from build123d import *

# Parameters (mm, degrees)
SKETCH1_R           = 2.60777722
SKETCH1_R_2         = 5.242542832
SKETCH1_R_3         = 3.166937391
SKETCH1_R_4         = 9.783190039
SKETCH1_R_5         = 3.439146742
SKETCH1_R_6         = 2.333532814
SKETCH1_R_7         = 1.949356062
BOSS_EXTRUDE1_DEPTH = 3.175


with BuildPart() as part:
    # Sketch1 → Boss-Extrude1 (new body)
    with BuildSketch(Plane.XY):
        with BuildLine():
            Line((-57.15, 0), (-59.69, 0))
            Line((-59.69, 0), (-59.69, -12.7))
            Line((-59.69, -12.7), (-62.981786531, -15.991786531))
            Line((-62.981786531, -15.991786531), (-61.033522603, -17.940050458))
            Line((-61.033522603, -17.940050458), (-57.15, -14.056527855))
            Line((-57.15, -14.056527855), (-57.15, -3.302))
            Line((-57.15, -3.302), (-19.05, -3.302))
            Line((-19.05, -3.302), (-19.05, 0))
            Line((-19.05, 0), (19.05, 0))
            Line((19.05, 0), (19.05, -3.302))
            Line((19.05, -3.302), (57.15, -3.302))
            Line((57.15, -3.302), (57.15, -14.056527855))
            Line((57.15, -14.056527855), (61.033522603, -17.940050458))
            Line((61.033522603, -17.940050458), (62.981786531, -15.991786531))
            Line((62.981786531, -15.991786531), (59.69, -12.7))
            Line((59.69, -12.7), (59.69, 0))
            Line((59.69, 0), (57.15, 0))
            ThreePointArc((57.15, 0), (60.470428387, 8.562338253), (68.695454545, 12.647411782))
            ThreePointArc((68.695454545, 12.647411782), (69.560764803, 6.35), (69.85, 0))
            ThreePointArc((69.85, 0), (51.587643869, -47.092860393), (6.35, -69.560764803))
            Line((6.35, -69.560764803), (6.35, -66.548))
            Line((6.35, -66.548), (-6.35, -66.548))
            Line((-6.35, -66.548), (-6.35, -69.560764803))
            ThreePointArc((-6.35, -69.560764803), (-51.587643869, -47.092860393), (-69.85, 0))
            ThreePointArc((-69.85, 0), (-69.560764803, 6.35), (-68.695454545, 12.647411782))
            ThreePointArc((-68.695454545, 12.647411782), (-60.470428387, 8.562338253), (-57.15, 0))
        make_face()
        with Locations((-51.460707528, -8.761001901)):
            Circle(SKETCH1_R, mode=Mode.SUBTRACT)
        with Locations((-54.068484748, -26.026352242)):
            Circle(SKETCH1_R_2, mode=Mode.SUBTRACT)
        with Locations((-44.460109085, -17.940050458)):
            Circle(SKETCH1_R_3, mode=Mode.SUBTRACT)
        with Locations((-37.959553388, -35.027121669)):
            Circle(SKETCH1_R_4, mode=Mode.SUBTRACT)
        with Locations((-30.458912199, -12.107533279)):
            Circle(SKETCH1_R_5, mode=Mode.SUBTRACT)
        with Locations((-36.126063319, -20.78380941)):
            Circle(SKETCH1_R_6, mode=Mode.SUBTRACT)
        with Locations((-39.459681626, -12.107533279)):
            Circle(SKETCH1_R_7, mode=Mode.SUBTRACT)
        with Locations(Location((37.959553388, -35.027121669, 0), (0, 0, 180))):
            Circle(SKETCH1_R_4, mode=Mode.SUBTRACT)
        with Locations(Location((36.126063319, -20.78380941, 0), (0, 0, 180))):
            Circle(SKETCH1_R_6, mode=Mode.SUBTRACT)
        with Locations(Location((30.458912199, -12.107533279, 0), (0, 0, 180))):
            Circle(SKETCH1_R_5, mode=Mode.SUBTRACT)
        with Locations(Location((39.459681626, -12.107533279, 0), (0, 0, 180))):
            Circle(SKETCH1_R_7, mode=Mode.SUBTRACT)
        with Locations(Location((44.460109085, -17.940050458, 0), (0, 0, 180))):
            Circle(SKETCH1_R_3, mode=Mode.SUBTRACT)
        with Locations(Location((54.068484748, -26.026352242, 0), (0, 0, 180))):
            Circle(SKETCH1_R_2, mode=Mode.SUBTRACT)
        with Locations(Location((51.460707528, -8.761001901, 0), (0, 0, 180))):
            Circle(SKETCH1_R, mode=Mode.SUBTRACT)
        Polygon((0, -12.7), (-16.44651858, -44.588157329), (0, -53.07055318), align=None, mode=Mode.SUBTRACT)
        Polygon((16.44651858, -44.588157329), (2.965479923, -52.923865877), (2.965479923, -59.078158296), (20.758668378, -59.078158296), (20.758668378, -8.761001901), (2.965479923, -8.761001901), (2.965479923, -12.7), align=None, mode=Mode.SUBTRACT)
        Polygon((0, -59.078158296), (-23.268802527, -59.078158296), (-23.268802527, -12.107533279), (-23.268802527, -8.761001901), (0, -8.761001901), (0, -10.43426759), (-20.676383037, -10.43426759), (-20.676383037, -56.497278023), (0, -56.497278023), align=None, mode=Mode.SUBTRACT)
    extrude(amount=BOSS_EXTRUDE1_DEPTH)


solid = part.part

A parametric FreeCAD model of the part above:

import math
import FreeCAD as App
import Part
import Sketcher
Q = App.Units.Quantity

doc = App.newDocument("Part")
body = doc.addObject("PartDesign::Body", "Body")

# Sketch on XY plane
sketch1 = body.newObject("Sketcher::SketchObject", "Sketch")
sketch1.AttachmentSupport = (doc.getObject("XY_Plane"), [""])
sketch1.MapMode = "FlatFace"
sketch1.addGeometry(Part.LineSegment(App.Vector(-59.69, 0, 0), App.Vector(-57.15, 0, 0)), False)
sketch1.addGeometry(Part.ArcOfCircle(Part.Circle(App.Vector(-69.85, 0, 0), App.Vector(0, 0, 1), 12.7), math.radians(0), math.radians(84.784091)), False)
sketch1.addGeometry(Part.ArcOfCircle(Part.Circle(App.Vector(0, 0, 0), App.Vector(0, 0, 1), 69.85), math.radians(169.568183), math.radians(180)), False)
sketch1.addGeometry(Part.ArcOfCircle(Part.Circle(App.Vector(0, 0, 0), App.Vector(0, 0, 1), 69.85), math.radians(-180), math.radians(-95.215909)), False)
sketch1.addGeometry(Part.LineSegment(App.Vector(-6.35, -69.560765, 0), App.Vector(-6.35, -66.548, 0)), False)
sketch1.addGeometry(Part.LineSegment(App.Vector(-6.35, -66.548, 0), App.Vector(6.35, -66.548, 0)), False)
sketch1.addGeometry(Part.LineSegment(App.Vector(6.35, -66.548, 0), App.Vector(6.35, -69.560765, 0)), False)
sketch1.addGeometry(Part.ArcOfCircle(Part.Circle(App.Vector(0, 0, 0), App.Vector(0, 0, 1), 69.85), math.radians(-84.784091), math.radians(0)), False)
sketch1.addGeometry(Part.ArcOfCircle(Part.Circle(App.Vector(0, 0, 0), App.Vector(0, 0, 1), 69.85), math.radians(0), math.radians(10.431817)), False)
sketch1.addGeometry(Part.ArcOfCircle(Part.Circle(App.Vector(69.85, 0, 0), App.Vector(0, 0, 1), 12.7), math.radians(95.215909), math.radians(180)), False)
sketch1.addGeometry(Part.LineSegment(App.Vector(57.15, 0, 0), App.Vector(59.69, 0, 0)), False)
sketch1.addGeometry(Part.LineSegment(App.Vector(59.69, 0, 0), App.Vector(59.69, -12.7, 0)), False)
sketch1.addGeometry(Part.LineSegment(App.Vector(59.69, -12.7, 0), App.Vector(62.981787, -15.991787, 0)), False)
sketch1.addGeometry(Part.LineSegment(App.Vector(62.981787, -15.991787, 0), App.Vector(61.033523, -17.94005, 0)), False)
sketch1.addGeometry(Part.LineSegment(App.Vector(61.033523, -17.94005, 0), App.Vector(57.15, -14.056528, 0)), False)
sketch1.addGeometry(Part.LineSegment(App.Vector(57.15, -14.056528, 0), App.Vector(57.15, -3.302, 0)), False)
sketch1.addGeometry(Part.LineSegment(App.Vector(57.15, -3.302, 0), App.Vector(19.05, -3.302, 0)), False)
sketch1.addGeometry(Part.LineSegment(App.Vector(19.05, -3.302, 0), App.Vector(19.05, 0, 0)), False)
sketch1.addGeometry(Part.LineSegment(App.Vector(19.05, 0, 0), App.Vector(-19.05, 0, 0)), False)
sketch1.addGeometry(Part.LineSegment(App.Vector(-19.05, 0, 0), App.Vector(-19.05, -3.302, 0)), False)
sketch1.addGeometry(Part.LineSegment(App.Vector(-19.05, -3.302, 0), App.Vector(-57.15, -3.302, 0)), False)
sketch1.addGeometry(Part.LineSegment(App.Vector(-57.15, -3.302, 0), App.Vector(-57.15, -14.056528, 0)), False)
sketch1.addGeometry(Part.LineSegment(App.Vector(-57.15, -14.056528, 0), App.Vector(-61.033523, -17.94005, 0)), False)
sketch1.addGeometry(Part.LineSegment(App.Vector(-61.033523, -17.94005, 0), App.Vector(-62.981787, -15.991787, 0)), False)
sketch1.addGeometry(Part.LineSegment(App.Vector(-62.981787, -15.991787, 0), App.Vector(-59.69, -12.7, 0)), False)
sketch1.addGeometry(Part.LineSegment(App.Vector(-59.69, -12.7, 0), App.Vector(-59.69, 0, 0)), False)
sketch1.addGeometry(Part.Circle(App.Vector(37.959553, -35.027122, 0), App.Vector(0, 0, 1), 9.78319), False)
sketch1.addGeometry(Part.LineSegment(App.Vector(16.446519, -44.588157, 0), App.Vector(2.96548, -12.7, 0)), False)
sketch1.addGeometry(Part.LineSegment(App.Vector(2.96548, -12.7, 0), App.Vector(2.96548, -8.761002, 0)), False)
sketch1.addGeometry(Part.LineSegment(App.Vector(2.96548, -8.761002, 0), App.Vector(20.758668, -8.761002, 0)), False)
sketch1.addGeometry(Part.LineSegment(App.Vector(20.758668, -8.761002, 0), App.Vector(20.758668, -59.078158, 0)), False)
sketch1.addGeometry(Part.LineSegment(App.Vector(20.758668, -59.078158, 0), App.Vector(2.96548, -59.078158, 0)), False)
sketch1.addGeometry(Part.LineSegment(App.Vector(2.96548, -59.078158, 0), App.Vector(2.96548, -52.923866, 0)), False)
sketch1.addGeometry(Part.LineSegment(App.Vector(2.96548, -52.923866, 0), App.Vector(16.446519, -44.588157, 0)), False)
sketch1.addGeometry(Part.LineSegment(App.Vector(0, -12.7, 0), App.Vector(0, -53.070553, 0)), False)
sketch1.addGeometry(Part.LineSegment(App.Vector(0, -53.070553, 0), App.Vector(-16.446519, -44.588157, 0)), False)
sketch1.addGeometry(Part.LineSegment(App.Vector(-16.446519, -44.588157, 0), App.Vector(0, -12.7, 0)), False)
sketch1.addGeometry(Part.LineSegment(App.Vector(0, -59.078158, 0), App.Vector(-23.268803, -59.078158, 0)), False)
sketch1.addGeometry(Part.LineSegment(App.Vector(-23.268803, -59.078158, 0), App.Vector(-23.268803, -8.761002, 0)), False)
sketch1.addGeometry(Part.LineSegment(App.Vector(-23.268803, -8.761002, 0), App.Vector(0, -8.761002, 0)), False)
sketch1.addGeometry(Part.LineSegment(App.Vector(0, -8.761002, 0), App.Vector(0, -10.434268, 0)), False)
sketch1.addGeometry(Part.LineSegment(App.Vector(0, -10.434268, 0), App.Vector(-20.676383, -10.434268, 0)), False)
sketch1.addGeometry(Part.LineSegment(App.Vector(-20.676383, -10.434268, 0), App.Vector(-20.676383, -56.497278, 0)), False)
sketch1.addGeometry(Part.LineSegment(App.Vector(-20.676383, -56.497278, 0), App.Vector(0, -56.497278, 0)), False)
sketch1.addGeometry(Part.LineSegment(App.Vector(0, -56.497278, 0), App.Vector(0, -59.078158, 0)), False)
sketch1.addGeometry(Part.Circle(App.Vector(-37.959553, -35.027122, 0), App.Vector(0, 0, 1), 9.78319), False)
sketch1.addGeometry(Part.Circle(App.Vector(54.068485, -26.026352, 0), App.Vector(0, 0, 1), 5.242543), False)
sketch1.addGeometry(Part.Circle(App.Vector(36.126063, -20.783809, 0), App.Vector(0, 0, 1), 2.333533), False)
sketch1.addGeometry(Part.Circle(App.Vector(44.460109, -17.94005, 0), App.Vector(0, 0, 1), 3.166937), False)
sketch1.addGeometry(Part.Circle(App.Vector(51.460708, -8.761002, 0), App.Vector(0, 0, 1), 2.607777), False)
sketch1.addGeometry(Part.Circle(App.Vector(39.459682, -12.107533, 0), App.Vector(0, 0, 1), 1.949356), False)
sketch1.addGeometry(Part.Circle(App.Vector(30.458912, -12.107533, 0), App.Vector(0, 0, 1), 3.439147), False)
sketch1.addGeometry(Part.Circle(App.Vector(-54.068485, -26.026352, 0), App.Vector(0, 0, 1), 5.242543), False)
sketch1.addGeometry(Part.Circle(App.Vector(-36.126063, -20.783809, 0), App.Vector(0, 0, 1), 2.333533), False)
sketch1.addGeometry(Part.Circle(App.Vector(-44.460109, -17.94005, 0), App.Vector(0, 0, 1), 3.166937), False)
sketch1.addGeometry(Part.Circle(App.Vector(-30.458912, -12.107533, 0), App.Vector(0, 0, 1), 3.439147), False)
sketch1.addGeometry(Part.Circle(App.Vector(-39.459682, -12.107533, 0), App.Vector(0, 0, 1), 1.949356), False)
sketch1.addGeometry(Part.Circle(App.Vector(-51.460708, -8.761002, 0), App.Vector(0, 0, 1), 2.607777), False)
sketch1.addConstraint(Sketcher.Constraint("Coincident", 0, 2, 1, 1))
sketch1.addConstraint(Sketcher.Constraint("Coincident", 1, 2, 2, 1))
sketch1.addConstraint(Sketcher.Constraint("Tangent", 2, 2, 3, 1))
sketch1.addConstraint(Sketcher.Constraint("Coincident", 3, 2, 4, 1))
sketch1.addConstraint(Sketcher.Constraint("Coincident", 4, 2, 5, 1))
sketch1.addConstraint(Sketcher.Constraint("Coincident", 5, 2, 6, 1))
sketch1.addConstraint(Sketcher.Constraint("Coincident", 6, 2, 7, 1))
sketch1.addConstraint(Sketcher.Constraint("Tangent", 7, 2, 8, 1))
sketch1.addConstraint(Sketcher.Constraint("Coincident", 8, 2, 9, 1))
sketch1.addConstraint(Sketcher.Constraint("Coincident", 9, 2, 10, 1))
sketch1.addConstraint(Sketcher.Constraint("Coincident", 10, 2, 11, 1))
sketch1.addConstraint(Sketcher.Constraint("Coincident", 11, 2, 12, 1))
sketch1.addConstraint(Sketcher.Constraint("Coincident", 12, 2, 13, 1))
sketch1.addConstraint(Sketcher.Constraint("Coincident", 13, 2, 14, 1))
sketch1.addConstraint(Sketcher.Constraint("Coincident", 14, 2, 15, 1))
sketch1.addConstraint(Sketcher.Constraint("Coincident", 15, 2, 16, 1))
sketch1.addConstraint(Sketcher.Constraint("Coincident", 16, 2, 17, 1))
sketch1.addConstraint(Sketcher.Constraint("Coincident", 17, 2, 18, 1))
sketch1.addConstraint(Sketcher.Constraint("Coincident", 18, 2, 19, 1))
sketch1.addConstraint(Sketcher.Constraint("Coincident", 19, 2, 20, 1))
sketch1.addConstraint(Sketcher.Constraint("Coincident", 20, 2, 21, 1))
sketch1.addConstraint(Sketcher.Constraint("Coincident", 21, 2, 22, 1))
sketch1.addConstraint(Sketcher.Constraint("Coincident", 22, 2, 23, 1))
sketch1.addConstraint(Sketcher.Constraint("Coincident", 23, 2, 24, 1))
sketch1.addConstraint(Sketcher.Constraint("Coincident", 24, 2, 25, 1))
sketch1.addConstraint(Sketcher.Constraint("Coincident", 25, 2, 0, 1))
sketch1.addConstraint(Sketcher.Constraint("Coincident", 27, 2, 28, 1))
sketch1.addConstraint(Sketcher.Constraint("Coincident", 28, 2, 29, 1))
sketch1.addConstraint(Sketcher.Constraint("Coincident", 29, 2, 30, 1))
sketch1.addConstraint(Sketcher.Constraint("Coincident", 30, 2, 31, 1))
sketch1.addConstraint(Sketcher.Constraint("Coincident", 31, 2, 32, 1))
sketch1.addConstraint(Sketcher.Constraint("Coincident", 32, 2, 33, 1))
sketch1.addConstraint(Sketcher.Constraint("Coincident", 33, 2, 27, 1))
sketch1.addConstraint(Sketcher.Constraint("Coincident", 34, 2, 35, 1))
sketch1.addConstraint(Sketcher.Constraint("Coincident", 35, 2, 36, 1))
sketch1.addConstraint(Sketcher.Constraint("Coincident", 36, 2, 34, 1))
sketch1.addConstraint(Sketcher.Constraint("Coincident", 37, 2, 38, 1))
sketch1.addConstraint(Sketcher.Constraint("Coincident", 38, 2, 39, 1))
sketch1.addConstraint(Sketcher.Constraint("Coincident", 39, 2, 40, 1))
sketch1.addConstraint(Sketcher.Constraint("Coincident", 40, 2, 41, 1))
sketch1.addConstraint(Sketcher.Constraint("Coincident", 41, 2, 42, 1))
sketch1.addConstraint(Sketcher.Constraint("Coincident", 42, 2, 43, 1))
sketch1.addConstraint(Sketcher.Constraint("Coincident", 43, 2, 44, 1))
sketch1.addConstraint(Sketcher.Constraint("Coincident", 44, 2, 37, 1))
sketch1.addConstraint(Sketcher.Constraint("Horizontal", 0))
sketch1.addConstraint(Sketcher.Constraint("Vertical", 4))
sketch1.addConstraint(Sketcher.Constraint("Horizontal", 5))
sketch1.addConstraint(Sketcher.Constraint("Vertical", 6))
sketch1.addConstraint(Sketcher.Constraint("Horizontal", 10))
sketch1.addConstraint(Sketcher.Constraint("Vertical", 11))
sketch1.addConstraint(Sketcher.Constraint("Vertical", 15))
sketch1.addConstraint(Sketcher.Constraint("Horizontal", 16))
sketch1.addConstraint(Sketcher.Constraint("Vertical", 17))
sketch1.addConstraint(Sketcher.Constraint("Horizontal", 18))
sketch1.addConstraint(Sketcher.Constraint("Vertical", 19))
sketch1.addConstraint(Sketcher.Constraint("Horizontal", 20))
sketch1.addConstraint(Sketcher.Constraint("Vertical", 21))
sketch1.addConstraint(Sketcher.Constraint("Vertical", 25))
sketch1.addConstraint(Sketcher.Constraint("Vertical", 28))
sketch1.addConstraint(Sketcher.Constraint("Horizontal", 29))
sketch1.addConstraint(Sketcher.Constraint("Vertical", 30))
sketch1.addConstraint(Sketcher.Constraint("Horizontal", 31))
sketch1.addConstraint(Sketcher.Constraint("Vertical", 32))
sketch1.addConstraint(Sketcher.Constraint("Vertical", 34))
sketch1.addConstraint(Sketcher.Constraint("Horizontal", 37))
sketch1.addConstraint(Sketcher.Constraint("Vertical", 38))
sketch1.addConstraint(Sketcher.Constraint("Horizontal", 39))
sketch1.addConstraint(Sketcher.Constraint("Vertical", 40))
sketch1.addConstraint(Sketcher.Constraint("Horizontal", 41))
sketch1.addConstraint(Sketcher.Constraint("Vertical", 42))
sketch1.addConstraint(Sketcher.Constraint("Horizontal", 43))
sketch1.addConstraint(Sketcher.Constraint("Vertical", 44))
sketch1.addConstraint(Sketcher.Constraint("Coincident", 2, 3, -1, 1))
sketch1.addConstraint(Sketcher.Constraint("Coincident", 7, 3, -1, 1))
sketch1.addConstraint(Sketcher.Constraint("Coincident", 2, 2, 1, 3))
sketch1.addConstraint(Sketcher.Constraint("Coincident", 7, 2, 9, 3))
sketch1.addConstraint(Sketcher.Constraint("Equal", 2, 3))
sketch1.addConstraint(Sketcher.Constraint("Equal", 3, 7))
sketch1.addConstraint(Sketcher.Constraint("Equal", 7, 8))
sketch1.addConstraint(Sketcher.Constraint("Equal", 1, 9))
sketch1.addConstraint(Sketcher.Constraint("Equal", 26, 45))
sketch1.addConstraint(Sketcher.Constraint("Equal", 46, 52))
sketch1.addConstraint(Sketcher.Constraint("Equal", 47, 53))
sketch1.addConstraint(Sketcher.Constraint("Equal", 48, 54))
sketch1.addConstraint(Sketcher.Constraint("Equal", 51, 55))
sketch1.addConstraint(Sketcher.Constraint("Equal", 50, 56))
sketch1.addConstraint(Sketcher.Constraint("Equal", 49, 57))
sketch1.addConstraint(Sketcher.Constraint("Symmetric", 17, 2, 18, 2, -1, 1))
sketch1.addConstraint(Sketcher.Constraint("Symmetric", 10, 2, 25, 2, -1, 1))
sketch1.addConstraint(Sketcher.Constraint("Symmetric", 26, 3, 45, 3, -2))
sketch1.addConstraint(Sketcher.Constraint("Symmetric", 46, 3, 52, 3, -2))
sketch1.addConstraint(Sketcher.Constraint("Symmetric", 47, 3, 53, 3, -2))
sketch1.addConstraint(Sketcher.Constraint("Symmetric", 48, 3, 54, 3, -2))
sketch1.addConstraint(Sketcher.Constraint("Symmetric", 51, 3, 55, 3, -2))
sketch1.addConstraint(Sketcher.Constraint("Symmetric", 50, 3, 56, 3, -2))
sketch1.addConstraint(Sketcher.Constraint("Symmetric", 49, 3, 57, 3, -2))
sketch1.addConstraint(Sketcher.Constraint("Symmetric", 15, 2, 20, 2, -2))
sketch1.addConstraint(Sketcher.Constraint("Symmetric", 13, 2, 22, 2, -2))
sketch1.addConstraint(Sketcher.Constraint("Symmetric", 12, 2, 23, 2, -2))
sketch1.addConstraint(Sketcher.Constraint("Symmetric", 33, 2, 35, 2, -2))
sketch1.addConstraint(Sketcher.Constraint("PointOnObject", 1, 3, -1))
sketch1.addConstraint(Sketcher.Constraint("PointOnObject", 9, 3, -1))
sketch1.addConstraint(Sketcher.Constraint("PointOnObject", 0, 2, -1))
sketch1.addConstraint(Sketcher.Constraint("PointOnObject", 34, 2, -2))
sketch1.addConstraint(Sketcher.Constraint("PointOnObject", 39, 2, -2))
sketch1.addConstraint(Sketcher.Constraint("PointOnObject", 43, 2, -2))
sketch1.addConstraint(Sketcher.Constraint("Perpendicular", 12, 13))
sketch1.addConstraint(Sketcher.Constraint("Perpendicular", 13, 14))
sketch1.addConstraint(Sketcher.Constraint("Perpendicular", 14, 22))
sketch1.addConstraint(Sketcher.Constraint("Perpendicular", 22, 23))
sketch1.addConstraint(Sketcher.Constraint("Perpendicular", 23, 24))
sketch1.addConstraint(Sketcher.Constraint("Perpendicular", 35, 36))
sketch1.addConstraint(Sketcher.Constraint("Horizontal", 50, 3, 51, 3))
sketch1.addConstraint(Sketcher.Constraint("Horizontal", 3, 2, 6, 2))
sketch1.addConstraint(Sketcher.Constraint("Horizontal", 54, 3, 13, 2))
sketch1.addConstraint(Sketcher.Constraint("Horizontal", 24, 2, 27, 2))
sketch1.addConstraint(Sketcher.Constraint("Horizontal", 57, 3, 28, 2))
sketch1.addConstraint(Sketcher.Constraint("Horizontal", 27, 2, 36, 2))
sketch1.addConstraint(Sketcher.Constraint("Horizontal", 31, 2, 37, 2))
sketch1.addConstraint(Sketcher.Constraint("Horizontal", 29, 2, 38, 2))
sketch1.addConstraint(Sketcher.Constraint("Vertical", 9, 2, 14, 2))
sketch1.addConstraint(Sketcher.Constraint("Vertical", 28, 2, 31, 2))
sketch1.addConstraint(Sketcher.Constraint("Equal", 16, 18))
sketch1.addConstraint(Sketcher.Constraint("Equal", 5, 11))
sketch1.addConstraint(Sketcher.Constraint("Radius", 1, Q("0.5 in")))
sketch1.addConstraint(Sketcher.Constraint("Radius", 2, Q("2.75 in")))
sketch1.addConstraint(Sketcher.Constraint("DistanceX", 0, 1, 0, 2, Q("0.1 in")))
sketch1.addConstraint(Sketcher.Constraint("DistanceX", 5, 1, 5, 2, Q("0.5 in")))
sketch1.addConstraint(Sketcher.Constraint("DistanceY", 17, 1, 17, 2, Q("0.13 in")))
sketch1.addConstraint(Sketcher.Constraint("DistanceY", 4, 2, -1, 1, Q("2.62 in")))
sketch1.addConstraint(Sketcher.Constraint("Diameter", 26, 19.56638))
sketch1.addConstraint(Sketcher.Constraint("Diameter", 46, 10.485086))
sketch1.addConstraint(Sketcher.Constraint("Diameter", 47, 4.667066))
sketch1.addConstraint(Sketcher.Constraint("Diameter", 48, 6.333875))
sketch1.addConstraint(Sketcher.Constraint("Diameter", 49, 5.215554))
sketch1.addConstraint(Sketcher.Constraint("Diameter", 50, 3.898712))
sketch1.addConstraint(Sketcher.Constraint("Diameter", 51, 6.878293))
sketch1.addConstraint(Sketcher.Constraint("DistanceY", 28, 1, 28, 2, 3.938998))
sketch1.addConstraint(Sketcher.Constraint("Distance", 27, 34.620702))
sketch1.addConstraint(Sketcher.Constraint("Distance", 33, 15.849998))
sketch1.addConstraint(Sketcher.Constraint("DistanceX", 29, 1, 29, 2, 17.793188))
sketch1.addConstraint(Sketcher.Constraint("DistanceY", 42, 2, 42, 1, 46.06301))
sketch1.addConstraint(Sketcher.Constraint("DistanceY", 44, 2, 44, 1, 2.58088))
sketch1.addConstraint(Sketcher.Constraint("Distance", 12, 4.655289))
sketch1.addConstraint(Sketcher.Constraint("Distance", 13, 2.755261))
sketch1.addConstraint(Sketcher.Constraint("DistanceX", 37, 2, 37, 1, 23.268803))
sketch1.addConstraint(Sketcher.Constraint("DistanceX", 41, 2, 41, 1, 20.676383))
sketch1.addConstraint(Sketcher.Constraint("DistanceY", 30, 2, 30, 1, 50.317156))
sketch1.addConstraint(Sketcher.Constraint("DistanceY", 32, 1, 32, 2, 6.154292))
sketch1.addConstraint(Sketcher.Constraint("DistanceY", 34, 2, 34, 1, 40.370553))
sketch1.addConstraint(Sketcher.Constraint("DistanceY", 26, 3, -1, 1, 35.027122))
sketch1.addConstraint(Sketcher.Constraint("DistanceY", 47, 3, -1, 1, 20.783809))
sketch1.addConstraint(Sketcher.Constraint("DistanceX", -1, 1, 48, 3, 44.460109))
sketch1.addConstraint(Sketcher.Constraint("DistanceX", -1, 1, 50, 3, 39.459682))
sketch1.addConstraint(Sketcher.Constraint("DistanceX", -1, 1, 26, 3, 37.959553))
sketch1.addConstraint(Sketcher.Constraint("DistanceX", -1, 1, 46, 3, 54.068485))
sketch1.addConstraint(Sketcher.Constraint("DistanceY", 46, 3, -1, 1, 26.026352))
sketch1.addConstraint(Sketcher.Constraint("DistanceX", -1, 1, 47, 3, 36.126063))
sketch1.addConstraint(Sketcher.Constraint("DistanceX", -1, 1, 49, 3, 51.460708))
sketch1.addConstraint(Sketcher.Constraint("DistanceY", 50, 3, -1, 1, 12.107533))
sketch1.addConstraint(Sketcher.Constraint("DistanceX", -1, 1, 51, 3, 30.458912))
pad1 = body.newObject("PartDesign::Pad", "Pad")
pad1.Profile = sketch1
pad1.Length = Q("0.125 in")

doc.recompute()
